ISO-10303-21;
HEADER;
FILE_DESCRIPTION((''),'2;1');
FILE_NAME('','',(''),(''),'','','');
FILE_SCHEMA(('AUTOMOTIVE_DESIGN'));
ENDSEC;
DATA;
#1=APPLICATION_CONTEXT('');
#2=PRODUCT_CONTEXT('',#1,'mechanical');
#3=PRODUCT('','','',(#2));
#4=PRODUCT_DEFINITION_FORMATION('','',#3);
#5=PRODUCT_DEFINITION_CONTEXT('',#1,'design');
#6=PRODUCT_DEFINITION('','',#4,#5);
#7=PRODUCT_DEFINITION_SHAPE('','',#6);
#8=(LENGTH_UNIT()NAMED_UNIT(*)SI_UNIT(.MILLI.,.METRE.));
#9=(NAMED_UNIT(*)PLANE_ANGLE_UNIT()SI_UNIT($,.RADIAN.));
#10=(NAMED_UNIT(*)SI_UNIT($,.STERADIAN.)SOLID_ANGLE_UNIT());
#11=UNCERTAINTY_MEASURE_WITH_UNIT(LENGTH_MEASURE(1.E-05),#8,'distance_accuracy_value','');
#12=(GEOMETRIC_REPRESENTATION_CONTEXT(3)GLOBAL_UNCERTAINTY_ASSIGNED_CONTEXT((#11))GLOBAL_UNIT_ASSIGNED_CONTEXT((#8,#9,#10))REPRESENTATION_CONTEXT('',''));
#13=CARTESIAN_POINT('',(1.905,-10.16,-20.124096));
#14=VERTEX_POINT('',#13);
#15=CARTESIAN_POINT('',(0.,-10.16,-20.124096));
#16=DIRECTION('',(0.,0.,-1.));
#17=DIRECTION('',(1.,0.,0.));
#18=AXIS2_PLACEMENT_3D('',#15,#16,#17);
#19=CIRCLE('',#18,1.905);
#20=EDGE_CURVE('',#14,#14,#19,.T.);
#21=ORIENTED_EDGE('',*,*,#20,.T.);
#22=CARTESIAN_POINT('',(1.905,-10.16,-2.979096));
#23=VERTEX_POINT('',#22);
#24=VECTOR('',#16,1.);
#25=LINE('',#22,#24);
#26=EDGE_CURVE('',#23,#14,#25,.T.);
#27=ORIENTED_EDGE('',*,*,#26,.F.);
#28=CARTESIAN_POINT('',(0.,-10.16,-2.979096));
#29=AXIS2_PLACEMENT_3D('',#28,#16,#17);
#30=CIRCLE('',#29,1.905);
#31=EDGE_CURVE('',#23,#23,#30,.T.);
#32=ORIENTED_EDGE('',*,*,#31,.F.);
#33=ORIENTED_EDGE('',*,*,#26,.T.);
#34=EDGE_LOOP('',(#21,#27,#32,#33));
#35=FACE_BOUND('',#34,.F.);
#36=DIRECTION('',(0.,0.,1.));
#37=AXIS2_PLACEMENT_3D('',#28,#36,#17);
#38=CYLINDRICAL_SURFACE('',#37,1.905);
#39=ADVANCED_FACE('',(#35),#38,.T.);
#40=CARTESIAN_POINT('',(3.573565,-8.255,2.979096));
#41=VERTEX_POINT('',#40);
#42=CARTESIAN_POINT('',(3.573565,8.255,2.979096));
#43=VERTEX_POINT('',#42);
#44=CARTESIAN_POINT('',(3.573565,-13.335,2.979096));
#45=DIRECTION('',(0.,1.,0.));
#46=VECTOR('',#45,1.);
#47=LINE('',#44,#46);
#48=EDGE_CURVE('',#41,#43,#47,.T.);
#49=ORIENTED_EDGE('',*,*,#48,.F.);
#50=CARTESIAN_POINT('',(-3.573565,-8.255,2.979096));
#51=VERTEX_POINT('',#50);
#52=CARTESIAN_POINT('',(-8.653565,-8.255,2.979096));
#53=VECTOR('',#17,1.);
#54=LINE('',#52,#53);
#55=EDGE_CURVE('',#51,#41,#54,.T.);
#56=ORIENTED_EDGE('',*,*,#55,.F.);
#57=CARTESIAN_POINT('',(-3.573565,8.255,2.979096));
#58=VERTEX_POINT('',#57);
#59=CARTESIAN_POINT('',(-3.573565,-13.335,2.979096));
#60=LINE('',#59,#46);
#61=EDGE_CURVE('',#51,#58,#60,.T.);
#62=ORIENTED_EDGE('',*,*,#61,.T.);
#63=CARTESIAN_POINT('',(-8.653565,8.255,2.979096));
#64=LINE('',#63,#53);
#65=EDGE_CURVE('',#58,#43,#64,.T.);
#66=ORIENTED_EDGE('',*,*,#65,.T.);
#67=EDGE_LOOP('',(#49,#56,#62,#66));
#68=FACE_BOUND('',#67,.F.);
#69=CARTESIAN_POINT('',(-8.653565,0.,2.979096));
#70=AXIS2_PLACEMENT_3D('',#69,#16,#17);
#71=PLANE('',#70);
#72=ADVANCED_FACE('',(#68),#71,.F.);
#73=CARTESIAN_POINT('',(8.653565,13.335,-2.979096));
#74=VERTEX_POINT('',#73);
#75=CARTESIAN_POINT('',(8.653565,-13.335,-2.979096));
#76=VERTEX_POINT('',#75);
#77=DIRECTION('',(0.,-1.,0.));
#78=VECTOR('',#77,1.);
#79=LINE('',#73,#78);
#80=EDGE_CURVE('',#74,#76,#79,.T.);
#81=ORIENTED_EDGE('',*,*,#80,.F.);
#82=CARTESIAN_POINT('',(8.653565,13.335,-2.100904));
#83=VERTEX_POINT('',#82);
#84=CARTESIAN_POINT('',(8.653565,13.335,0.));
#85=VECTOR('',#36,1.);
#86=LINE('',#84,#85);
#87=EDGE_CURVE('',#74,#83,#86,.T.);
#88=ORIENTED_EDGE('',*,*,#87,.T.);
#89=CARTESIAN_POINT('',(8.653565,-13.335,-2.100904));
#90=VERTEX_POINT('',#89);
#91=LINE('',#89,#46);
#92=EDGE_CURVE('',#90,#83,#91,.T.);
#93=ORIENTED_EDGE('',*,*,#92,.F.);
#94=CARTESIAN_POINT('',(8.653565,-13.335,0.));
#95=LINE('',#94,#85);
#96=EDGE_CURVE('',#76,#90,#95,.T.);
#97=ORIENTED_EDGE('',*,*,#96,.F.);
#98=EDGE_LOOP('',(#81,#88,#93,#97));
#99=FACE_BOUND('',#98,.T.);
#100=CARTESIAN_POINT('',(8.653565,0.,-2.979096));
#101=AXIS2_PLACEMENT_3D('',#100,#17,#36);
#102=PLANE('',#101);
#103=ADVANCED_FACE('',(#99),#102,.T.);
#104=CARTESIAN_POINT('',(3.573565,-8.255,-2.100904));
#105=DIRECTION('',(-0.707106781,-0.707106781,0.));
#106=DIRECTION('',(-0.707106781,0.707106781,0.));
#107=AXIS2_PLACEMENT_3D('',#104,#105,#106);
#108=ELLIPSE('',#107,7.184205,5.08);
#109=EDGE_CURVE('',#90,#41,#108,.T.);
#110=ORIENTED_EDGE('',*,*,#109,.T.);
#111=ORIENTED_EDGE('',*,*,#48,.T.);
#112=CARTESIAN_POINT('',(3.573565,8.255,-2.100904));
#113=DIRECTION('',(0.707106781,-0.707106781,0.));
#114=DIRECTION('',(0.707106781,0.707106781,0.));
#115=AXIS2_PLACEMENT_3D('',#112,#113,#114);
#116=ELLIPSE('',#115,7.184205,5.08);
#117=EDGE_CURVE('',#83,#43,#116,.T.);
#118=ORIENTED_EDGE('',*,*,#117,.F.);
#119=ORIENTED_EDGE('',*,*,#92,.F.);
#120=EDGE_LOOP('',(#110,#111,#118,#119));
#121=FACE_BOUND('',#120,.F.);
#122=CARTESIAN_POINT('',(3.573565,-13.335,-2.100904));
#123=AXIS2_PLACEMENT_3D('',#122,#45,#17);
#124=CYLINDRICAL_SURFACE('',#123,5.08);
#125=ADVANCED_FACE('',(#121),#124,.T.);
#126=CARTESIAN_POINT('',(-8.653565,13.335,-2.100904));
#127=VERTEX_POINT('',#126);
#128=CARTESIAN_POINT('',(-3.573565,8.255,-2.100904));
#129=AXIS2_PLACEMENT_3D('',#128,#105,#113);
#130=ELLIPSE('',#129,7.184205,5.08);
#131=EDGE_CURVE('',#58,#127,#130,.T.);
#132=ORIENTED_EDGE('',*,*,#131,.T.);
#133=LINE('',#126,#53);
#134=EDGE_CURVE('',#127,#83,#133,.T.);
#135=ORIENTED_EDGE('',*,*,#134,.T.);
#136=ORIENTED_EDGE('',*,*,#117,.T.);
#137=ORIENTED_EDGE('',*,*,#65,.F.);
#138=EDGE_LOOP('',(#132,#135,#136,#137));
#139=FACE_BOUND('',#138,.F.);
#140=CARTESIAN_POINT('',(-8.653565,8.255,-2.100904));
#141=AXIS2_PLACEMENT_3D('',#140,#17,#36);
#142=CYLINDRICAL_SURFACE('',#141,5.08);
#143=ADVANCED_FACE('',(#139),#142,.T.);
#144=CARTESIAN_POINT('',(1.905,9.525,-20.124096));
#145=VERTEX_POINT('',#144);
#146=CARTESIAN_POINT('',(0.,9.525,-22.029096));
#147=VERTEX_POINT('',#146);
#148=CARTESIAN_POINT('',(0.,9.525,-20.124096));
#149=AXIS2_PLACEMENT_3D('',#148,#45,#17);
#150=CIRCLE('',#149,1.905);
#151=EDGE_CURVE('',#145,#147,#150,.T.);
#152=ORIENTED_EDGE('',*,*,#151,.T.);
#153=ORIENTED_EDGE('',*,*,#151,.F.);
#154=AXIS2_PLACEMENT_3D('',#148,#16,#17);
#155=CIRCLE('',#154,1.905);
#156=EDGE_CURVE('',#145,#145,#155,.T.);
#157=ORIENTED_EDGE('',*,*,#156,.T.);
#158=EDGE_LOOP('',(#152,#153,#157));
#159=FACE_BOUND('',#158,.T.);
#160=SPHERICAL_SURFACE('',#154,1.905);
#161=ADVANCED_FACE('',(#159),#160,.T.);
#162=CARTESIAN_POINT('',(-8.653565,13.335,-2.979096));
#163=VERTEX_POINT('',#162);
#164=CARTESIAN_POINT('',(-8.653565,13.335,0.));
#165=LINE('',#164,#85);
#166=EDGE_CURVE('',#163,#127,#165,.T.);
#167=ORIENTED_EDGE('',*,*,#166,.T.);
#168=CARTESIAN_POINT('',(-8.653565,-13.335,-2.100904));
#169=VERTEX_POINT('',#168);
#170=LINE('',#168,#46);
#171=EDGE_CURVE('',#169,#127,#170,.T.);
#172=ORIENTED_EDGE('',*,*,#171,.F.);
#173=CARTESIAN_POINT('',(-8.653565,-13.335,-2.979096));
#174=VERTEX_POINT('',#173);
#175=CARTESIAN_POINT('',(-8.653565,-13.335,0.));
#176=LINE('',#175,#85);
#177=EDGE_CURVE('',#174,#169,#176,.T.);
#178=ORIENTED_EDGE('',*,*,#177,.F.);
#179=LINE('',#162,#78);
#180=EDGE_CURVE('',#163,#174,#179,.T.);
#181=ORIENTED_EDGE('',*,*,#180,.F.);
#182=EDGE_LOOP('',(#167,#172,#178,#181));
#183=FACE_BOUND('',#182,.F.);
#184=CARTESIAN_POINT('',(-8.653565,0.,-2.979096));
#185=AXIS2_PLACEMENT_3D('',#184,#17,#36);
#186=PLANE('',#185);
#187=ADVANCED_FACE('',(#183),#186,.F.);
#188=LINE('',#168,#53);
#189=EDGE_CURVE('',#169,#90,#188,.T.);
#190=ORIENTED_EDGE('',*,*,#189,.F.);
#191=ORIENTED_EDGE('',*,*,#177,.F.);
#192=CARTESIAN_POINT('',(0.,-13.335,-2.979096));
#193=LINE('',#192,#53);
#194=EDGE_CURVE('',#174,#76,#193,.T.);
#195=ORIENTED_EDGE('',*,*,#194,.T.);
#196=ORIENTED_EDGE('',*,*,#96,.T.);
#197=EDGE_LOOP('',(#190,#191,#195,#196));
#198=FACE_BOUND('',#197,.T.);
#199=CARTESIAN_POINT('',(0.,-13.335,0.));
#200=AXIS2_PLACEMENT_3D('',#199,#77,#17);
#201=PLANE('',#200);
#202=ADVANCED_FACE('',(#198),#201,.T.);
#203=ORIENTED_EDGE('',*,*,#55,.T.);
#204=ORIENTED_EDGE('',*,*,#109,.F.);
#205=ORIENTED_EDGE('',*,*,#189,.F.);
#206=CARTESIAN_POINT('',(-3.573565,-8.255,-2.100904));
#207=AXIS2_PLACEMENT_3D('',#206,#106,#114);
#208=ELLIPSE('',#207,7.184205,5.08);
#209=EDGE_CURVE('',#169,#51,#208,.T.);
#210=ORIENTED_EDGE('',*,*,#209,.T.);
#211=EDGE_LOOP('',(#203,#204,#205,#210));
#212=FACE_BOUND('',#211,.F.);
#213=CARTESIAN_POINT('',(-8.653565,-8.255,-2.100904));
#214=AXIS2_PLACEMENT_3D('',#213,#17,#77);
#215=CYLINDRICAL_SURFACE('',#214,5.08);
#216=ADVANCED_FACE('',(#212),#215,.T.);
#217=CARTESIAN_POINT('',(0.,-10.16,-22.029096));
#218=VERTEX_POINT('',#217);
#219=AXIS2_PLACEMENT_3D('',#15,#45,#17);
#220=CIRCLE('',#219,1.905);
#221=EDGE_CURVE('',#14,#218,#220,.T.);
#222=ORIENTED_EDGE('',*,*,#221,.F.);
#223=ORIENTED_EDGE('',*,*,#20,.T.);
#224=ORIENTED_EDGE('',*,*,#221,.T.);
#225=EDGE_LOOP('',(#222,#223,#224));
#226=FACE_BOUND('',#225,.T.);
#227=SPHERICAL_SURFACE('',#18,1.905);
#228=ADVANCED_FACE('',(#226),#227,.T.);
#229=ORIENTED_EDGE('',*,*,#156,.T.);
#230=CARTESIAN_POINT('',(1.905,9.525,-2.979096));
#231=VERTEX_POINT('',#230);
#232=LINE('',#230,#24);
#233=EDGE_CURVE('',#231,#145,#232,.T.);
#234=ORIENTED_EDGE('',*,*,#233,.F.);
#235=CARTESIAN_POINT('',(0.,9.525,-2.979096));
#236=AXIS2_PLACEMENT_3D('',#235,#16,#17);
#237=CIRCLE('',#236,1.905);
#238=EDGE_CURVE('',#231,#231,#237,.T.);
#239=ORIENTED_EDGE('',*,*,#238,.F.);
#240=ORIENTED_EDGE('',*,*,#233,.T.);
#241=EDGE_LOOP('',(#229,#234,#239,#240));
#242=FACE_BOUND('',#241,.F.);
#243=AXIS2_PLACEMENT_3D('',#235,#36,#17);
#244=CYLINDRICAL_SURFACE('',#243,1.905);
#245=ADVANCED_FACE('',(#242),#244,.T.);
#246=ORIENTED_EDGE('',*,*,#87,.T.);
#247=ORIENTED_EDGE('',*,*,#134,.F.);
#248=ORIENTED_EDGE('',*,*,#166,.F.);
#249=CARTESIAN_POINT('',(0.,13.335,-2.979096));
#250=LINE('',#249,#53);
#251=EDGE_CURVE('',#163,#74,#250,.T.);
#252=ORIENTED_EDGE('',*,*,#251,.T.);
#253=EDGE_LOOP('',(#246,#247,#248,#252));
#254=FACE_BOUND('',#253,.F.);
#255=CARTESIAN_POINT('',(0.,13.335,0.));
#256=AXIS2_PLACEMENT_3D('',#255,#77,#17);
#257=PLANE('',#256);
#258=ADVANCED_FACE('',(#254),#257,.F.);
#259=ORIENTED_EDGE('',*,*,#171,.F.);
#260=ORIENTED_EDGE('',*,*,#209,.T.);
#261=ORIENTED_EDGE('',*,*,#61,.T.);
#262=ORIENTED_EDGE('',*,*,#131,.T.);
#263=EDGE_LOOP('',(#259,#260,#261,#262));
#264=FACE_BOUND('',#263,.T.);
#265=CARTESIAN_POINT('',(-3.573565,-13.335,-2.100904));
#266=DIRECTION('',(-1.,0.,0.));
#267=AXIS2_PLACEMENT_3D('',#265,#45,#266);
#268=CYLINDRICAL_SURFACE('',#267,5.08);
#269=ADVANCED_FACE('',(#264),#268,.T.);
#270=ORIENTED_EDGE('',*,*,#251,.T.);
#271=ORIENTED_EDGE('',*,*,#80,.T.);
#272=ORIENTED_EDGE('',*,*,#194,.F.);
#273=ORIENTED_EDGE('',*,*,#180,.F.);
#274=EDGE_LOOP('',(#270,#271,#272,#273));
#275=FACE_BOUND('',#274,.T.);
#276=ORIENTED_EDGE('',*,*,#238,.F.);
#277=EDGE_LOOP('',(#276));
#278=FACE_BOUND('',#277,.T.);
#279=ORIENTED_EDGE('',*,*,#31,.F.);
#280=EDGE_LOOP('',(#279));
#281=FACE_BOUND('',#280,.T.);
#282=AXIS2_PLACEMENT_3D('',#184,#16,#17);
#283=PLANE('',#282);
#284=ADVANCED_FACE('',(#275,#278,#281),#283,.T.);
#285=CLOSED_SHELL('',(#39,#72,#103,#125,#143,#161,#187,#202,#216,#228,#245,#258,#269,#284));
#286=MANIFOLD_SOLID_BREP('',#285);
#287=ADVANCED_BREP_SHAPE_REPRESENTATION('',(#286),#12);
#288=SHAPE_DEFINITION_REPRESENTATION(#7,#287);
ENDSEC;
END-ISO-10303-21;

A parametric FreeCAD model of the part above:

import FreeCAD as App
import Part
import Sketcher
from FreeCAD import Vector
Q = App.Units.Quantity


def edges_at(feature, points):
    """Names of the edges that pass closest to the given points."""
    edges = feature.Shape.Edges
    near = lambda p: min(range(len(edges)), key=lambda i: edges[i].distToShape(Part.Vertex(*p))[0])
    return sorted({f"Edge{near(p) + 1}" for p in points})

doc = App.newDocument("Part")
params = doc.addObject("Spreadsheet::Sheet", "Params")
for row, (alias, value) in enumerate([
    ("pad1_length", "0.525 in"),
    ("pad2_length", "0.525 in"),
    ("fillet_radius", "0.2 in"),
    ("sketch3_diameter", "0.15 in"),
    ("pad3_length", "0.75 in"),
    ("fillet2_radius", "0.075 in"),
], start=1):
    params.set(f"A{row}", alias)
    params.set(f"B{row}", "=" + value)
    params.setAlias(f"B{row}", alias)

body = doc.addObject("PartDesign::Body", "Body")

# Sketch on XZ plane
sketch1 = body.newObject("Sketcher::SketchObject", "Sketch")
sketch1.AttachmentSupport = (doc.getObject("XZ_Plane"), [""])
sketch1.MapMode = "FlatFace"
sketch1.addGeometry([
    Part.LineSegment(Vector(-9, 3, 0), Vector(-9, -3, 0)),
    Part.LineSegment(Vector(-9, -3, 0), Vector(9, -3, 0)),
    Part.LineSegment(Vector(9, -3, 0), Vector(9, 3, 0)),
    Part.LineSegment(Vector(9, 3, 0), Vector(-9, 3, 0)),
], False)
sketch1.addConstraint([
    Sketcher.Constraint("Coincident", 0, 2, 1, 1),
    Sketcher.Constraint("Coincident", 1, 2, 2, 1),
    Sketcher.Constraint("Coincident", 2, 2, 3, 1),
    Sketcher.Constraint("Coincident", 3, 2, 0, 1),
    Sketcher.Constraint("Vertical", 0),
    Sketcher.Constraint("Horizontal", 1),
    Sketcher.Constraint("Vertical", 2),
    Sketcher.Constraint("Horizontal", 3),
    Sketcher.Constraint("Symmetric", 0, 2, 2, 2, -1, 1),
    Sketcher.Constraint("DistanceX", 1, 1, 1, 2, Q("17.30713 mm")),
    Sketcher.Constraint("DistanceY", 0, 2, 0, 1, Q("5.958192 mm")),
])
pad1 = body.newObject("PartDesign::Pad", "Pad")
pad1.Profile = sketch1
pad1.setExpression("Length", "Params.pad1_length")

# Sketch on XZ plane
sketch2 = body.newObject("Sketcher::SketchObject", "Sketch001")
sketch2.AttachmentSupport = (doc.getObject("XZ_Plane"), [""])
sketch2.MapMode = "FlatFace"
sketch2.addGeometry([
    Part.LineSegment(Vector(-9, 3, 0), Vector(-9, -3, 0)),
    Part.LineSegment(Vector(-9, -3, 0), Vector(9, -3, 0)),
    Part.LineSegment(Vector(9, -3, 0), Vector(9, 3, 0)),
    Part.LineSegment(Vector(9, 3, 0), Vector(-9, 3, 0)),
], False)
sketch2.addConstraint([
    Sketcher.Constraint("Coincident", 0, 2, 1, 1),
    Sketcher.Constraint("Coincident", 1, 2, 2, 1),
    Sketcher.Constraint("Coincident", 2, 2, 3, 1),
    Sketcher.Constraint("Coincident", 3, 2, 0, 1),
    Sketcher.Constraint("Vertical", 0),
    Sketcher.Constraint("Horizontal", 1),
    Sketcher.Constraint("Vertical", 2),
    Sketcher.Constraint("Horizontal", 3),
    Sketcher.Constraint("Symmetric", 0, 2, 2, 2, -1, 1),
    Sketcher.Constraint("DistanceX", 1, 1, 1, 2, Q("17.30713 mm")),
    Sketcher.Constraint("DistanceY", 0, 2, 0, 1, Q("5.958192 mm")),
])
pad2 = body.newObject("PartDesign::Pad", "Pad001")
pad2.Profile = sketch2
pad2.setExpression("Length", "Params.pad2_length")
pad2.Reversed = True
doc.recompute()

fillet = body.newObject("PartDesign::Fillet", "Fillet")
fillet.Base = (pad2, edges_at(pad2, [
    (8.654, 0, 2.979),
    (0, 13.335, 2.979),
    (-8.654, 0, 2.979),
    (0, -13.335, 2.979),
]))
fillet.setExpression("Radius", "Params.fillet_radius")

# Sketch on XY plane
sketch3 = body.newObject("Sketcher::SketchObject", "Sketch002")
sketch3.AttachmentSupport = (doc.getObject("XY_Plane"), [""])
sketch3.MapMode = "FlatFace"
sketch3.AttachmentOffset = App.Placement(Vector(0, 0, -2.979096), App.Rotation())
sketch3.addGeometry([
    Part.Circle(Vector(0, -10.2, 0), Vector(0, 0, 1), 1.9),
    Part.Circle(Vector(0, 9.5, 0), Vector(0, 0, 1), 1.9),
], False)
sketch3.addConstraint([
    Sketcher.Constraint("Equal", 0, 1),
    Sketcher.Constraint("PointOnObject", 0, 3, -2),
    Sketcher.Constraint("PointOnObject", 1, 3, -2),
    Sketcher.Constraint("Diameter", 0, Q("0.15 in")),
    Sketcher.Constraint("DistanceY", 0, 3, -1, 1, Q("0.4 in")),
    Sketcher.Constraint("DistanceY", -1, 1, 1, 3, Q("0.375 in")),
])
sketch3.setExpression("Constraints[3]", "Params.sketch3_diameter")
pad3 = body.newObject("PartDesign::Pad", "Pad002")
pad3.Profile = sketch3
pad3.setExpression("Length", "Params.pad3_length")
pad3.Reversed = True
doc.recompute()

fillet2 = body.newObject("PartDesign::Fillet", "Fillet001")
fillet2.Base = (pad3, edges_at(pad3, [(-1.905, -10.16, -22.029), (-1.905, 9.525, -22.029)]))
fillet2.setExpression("Radius", "Params.fillet2_radius")

doc.recompute()
